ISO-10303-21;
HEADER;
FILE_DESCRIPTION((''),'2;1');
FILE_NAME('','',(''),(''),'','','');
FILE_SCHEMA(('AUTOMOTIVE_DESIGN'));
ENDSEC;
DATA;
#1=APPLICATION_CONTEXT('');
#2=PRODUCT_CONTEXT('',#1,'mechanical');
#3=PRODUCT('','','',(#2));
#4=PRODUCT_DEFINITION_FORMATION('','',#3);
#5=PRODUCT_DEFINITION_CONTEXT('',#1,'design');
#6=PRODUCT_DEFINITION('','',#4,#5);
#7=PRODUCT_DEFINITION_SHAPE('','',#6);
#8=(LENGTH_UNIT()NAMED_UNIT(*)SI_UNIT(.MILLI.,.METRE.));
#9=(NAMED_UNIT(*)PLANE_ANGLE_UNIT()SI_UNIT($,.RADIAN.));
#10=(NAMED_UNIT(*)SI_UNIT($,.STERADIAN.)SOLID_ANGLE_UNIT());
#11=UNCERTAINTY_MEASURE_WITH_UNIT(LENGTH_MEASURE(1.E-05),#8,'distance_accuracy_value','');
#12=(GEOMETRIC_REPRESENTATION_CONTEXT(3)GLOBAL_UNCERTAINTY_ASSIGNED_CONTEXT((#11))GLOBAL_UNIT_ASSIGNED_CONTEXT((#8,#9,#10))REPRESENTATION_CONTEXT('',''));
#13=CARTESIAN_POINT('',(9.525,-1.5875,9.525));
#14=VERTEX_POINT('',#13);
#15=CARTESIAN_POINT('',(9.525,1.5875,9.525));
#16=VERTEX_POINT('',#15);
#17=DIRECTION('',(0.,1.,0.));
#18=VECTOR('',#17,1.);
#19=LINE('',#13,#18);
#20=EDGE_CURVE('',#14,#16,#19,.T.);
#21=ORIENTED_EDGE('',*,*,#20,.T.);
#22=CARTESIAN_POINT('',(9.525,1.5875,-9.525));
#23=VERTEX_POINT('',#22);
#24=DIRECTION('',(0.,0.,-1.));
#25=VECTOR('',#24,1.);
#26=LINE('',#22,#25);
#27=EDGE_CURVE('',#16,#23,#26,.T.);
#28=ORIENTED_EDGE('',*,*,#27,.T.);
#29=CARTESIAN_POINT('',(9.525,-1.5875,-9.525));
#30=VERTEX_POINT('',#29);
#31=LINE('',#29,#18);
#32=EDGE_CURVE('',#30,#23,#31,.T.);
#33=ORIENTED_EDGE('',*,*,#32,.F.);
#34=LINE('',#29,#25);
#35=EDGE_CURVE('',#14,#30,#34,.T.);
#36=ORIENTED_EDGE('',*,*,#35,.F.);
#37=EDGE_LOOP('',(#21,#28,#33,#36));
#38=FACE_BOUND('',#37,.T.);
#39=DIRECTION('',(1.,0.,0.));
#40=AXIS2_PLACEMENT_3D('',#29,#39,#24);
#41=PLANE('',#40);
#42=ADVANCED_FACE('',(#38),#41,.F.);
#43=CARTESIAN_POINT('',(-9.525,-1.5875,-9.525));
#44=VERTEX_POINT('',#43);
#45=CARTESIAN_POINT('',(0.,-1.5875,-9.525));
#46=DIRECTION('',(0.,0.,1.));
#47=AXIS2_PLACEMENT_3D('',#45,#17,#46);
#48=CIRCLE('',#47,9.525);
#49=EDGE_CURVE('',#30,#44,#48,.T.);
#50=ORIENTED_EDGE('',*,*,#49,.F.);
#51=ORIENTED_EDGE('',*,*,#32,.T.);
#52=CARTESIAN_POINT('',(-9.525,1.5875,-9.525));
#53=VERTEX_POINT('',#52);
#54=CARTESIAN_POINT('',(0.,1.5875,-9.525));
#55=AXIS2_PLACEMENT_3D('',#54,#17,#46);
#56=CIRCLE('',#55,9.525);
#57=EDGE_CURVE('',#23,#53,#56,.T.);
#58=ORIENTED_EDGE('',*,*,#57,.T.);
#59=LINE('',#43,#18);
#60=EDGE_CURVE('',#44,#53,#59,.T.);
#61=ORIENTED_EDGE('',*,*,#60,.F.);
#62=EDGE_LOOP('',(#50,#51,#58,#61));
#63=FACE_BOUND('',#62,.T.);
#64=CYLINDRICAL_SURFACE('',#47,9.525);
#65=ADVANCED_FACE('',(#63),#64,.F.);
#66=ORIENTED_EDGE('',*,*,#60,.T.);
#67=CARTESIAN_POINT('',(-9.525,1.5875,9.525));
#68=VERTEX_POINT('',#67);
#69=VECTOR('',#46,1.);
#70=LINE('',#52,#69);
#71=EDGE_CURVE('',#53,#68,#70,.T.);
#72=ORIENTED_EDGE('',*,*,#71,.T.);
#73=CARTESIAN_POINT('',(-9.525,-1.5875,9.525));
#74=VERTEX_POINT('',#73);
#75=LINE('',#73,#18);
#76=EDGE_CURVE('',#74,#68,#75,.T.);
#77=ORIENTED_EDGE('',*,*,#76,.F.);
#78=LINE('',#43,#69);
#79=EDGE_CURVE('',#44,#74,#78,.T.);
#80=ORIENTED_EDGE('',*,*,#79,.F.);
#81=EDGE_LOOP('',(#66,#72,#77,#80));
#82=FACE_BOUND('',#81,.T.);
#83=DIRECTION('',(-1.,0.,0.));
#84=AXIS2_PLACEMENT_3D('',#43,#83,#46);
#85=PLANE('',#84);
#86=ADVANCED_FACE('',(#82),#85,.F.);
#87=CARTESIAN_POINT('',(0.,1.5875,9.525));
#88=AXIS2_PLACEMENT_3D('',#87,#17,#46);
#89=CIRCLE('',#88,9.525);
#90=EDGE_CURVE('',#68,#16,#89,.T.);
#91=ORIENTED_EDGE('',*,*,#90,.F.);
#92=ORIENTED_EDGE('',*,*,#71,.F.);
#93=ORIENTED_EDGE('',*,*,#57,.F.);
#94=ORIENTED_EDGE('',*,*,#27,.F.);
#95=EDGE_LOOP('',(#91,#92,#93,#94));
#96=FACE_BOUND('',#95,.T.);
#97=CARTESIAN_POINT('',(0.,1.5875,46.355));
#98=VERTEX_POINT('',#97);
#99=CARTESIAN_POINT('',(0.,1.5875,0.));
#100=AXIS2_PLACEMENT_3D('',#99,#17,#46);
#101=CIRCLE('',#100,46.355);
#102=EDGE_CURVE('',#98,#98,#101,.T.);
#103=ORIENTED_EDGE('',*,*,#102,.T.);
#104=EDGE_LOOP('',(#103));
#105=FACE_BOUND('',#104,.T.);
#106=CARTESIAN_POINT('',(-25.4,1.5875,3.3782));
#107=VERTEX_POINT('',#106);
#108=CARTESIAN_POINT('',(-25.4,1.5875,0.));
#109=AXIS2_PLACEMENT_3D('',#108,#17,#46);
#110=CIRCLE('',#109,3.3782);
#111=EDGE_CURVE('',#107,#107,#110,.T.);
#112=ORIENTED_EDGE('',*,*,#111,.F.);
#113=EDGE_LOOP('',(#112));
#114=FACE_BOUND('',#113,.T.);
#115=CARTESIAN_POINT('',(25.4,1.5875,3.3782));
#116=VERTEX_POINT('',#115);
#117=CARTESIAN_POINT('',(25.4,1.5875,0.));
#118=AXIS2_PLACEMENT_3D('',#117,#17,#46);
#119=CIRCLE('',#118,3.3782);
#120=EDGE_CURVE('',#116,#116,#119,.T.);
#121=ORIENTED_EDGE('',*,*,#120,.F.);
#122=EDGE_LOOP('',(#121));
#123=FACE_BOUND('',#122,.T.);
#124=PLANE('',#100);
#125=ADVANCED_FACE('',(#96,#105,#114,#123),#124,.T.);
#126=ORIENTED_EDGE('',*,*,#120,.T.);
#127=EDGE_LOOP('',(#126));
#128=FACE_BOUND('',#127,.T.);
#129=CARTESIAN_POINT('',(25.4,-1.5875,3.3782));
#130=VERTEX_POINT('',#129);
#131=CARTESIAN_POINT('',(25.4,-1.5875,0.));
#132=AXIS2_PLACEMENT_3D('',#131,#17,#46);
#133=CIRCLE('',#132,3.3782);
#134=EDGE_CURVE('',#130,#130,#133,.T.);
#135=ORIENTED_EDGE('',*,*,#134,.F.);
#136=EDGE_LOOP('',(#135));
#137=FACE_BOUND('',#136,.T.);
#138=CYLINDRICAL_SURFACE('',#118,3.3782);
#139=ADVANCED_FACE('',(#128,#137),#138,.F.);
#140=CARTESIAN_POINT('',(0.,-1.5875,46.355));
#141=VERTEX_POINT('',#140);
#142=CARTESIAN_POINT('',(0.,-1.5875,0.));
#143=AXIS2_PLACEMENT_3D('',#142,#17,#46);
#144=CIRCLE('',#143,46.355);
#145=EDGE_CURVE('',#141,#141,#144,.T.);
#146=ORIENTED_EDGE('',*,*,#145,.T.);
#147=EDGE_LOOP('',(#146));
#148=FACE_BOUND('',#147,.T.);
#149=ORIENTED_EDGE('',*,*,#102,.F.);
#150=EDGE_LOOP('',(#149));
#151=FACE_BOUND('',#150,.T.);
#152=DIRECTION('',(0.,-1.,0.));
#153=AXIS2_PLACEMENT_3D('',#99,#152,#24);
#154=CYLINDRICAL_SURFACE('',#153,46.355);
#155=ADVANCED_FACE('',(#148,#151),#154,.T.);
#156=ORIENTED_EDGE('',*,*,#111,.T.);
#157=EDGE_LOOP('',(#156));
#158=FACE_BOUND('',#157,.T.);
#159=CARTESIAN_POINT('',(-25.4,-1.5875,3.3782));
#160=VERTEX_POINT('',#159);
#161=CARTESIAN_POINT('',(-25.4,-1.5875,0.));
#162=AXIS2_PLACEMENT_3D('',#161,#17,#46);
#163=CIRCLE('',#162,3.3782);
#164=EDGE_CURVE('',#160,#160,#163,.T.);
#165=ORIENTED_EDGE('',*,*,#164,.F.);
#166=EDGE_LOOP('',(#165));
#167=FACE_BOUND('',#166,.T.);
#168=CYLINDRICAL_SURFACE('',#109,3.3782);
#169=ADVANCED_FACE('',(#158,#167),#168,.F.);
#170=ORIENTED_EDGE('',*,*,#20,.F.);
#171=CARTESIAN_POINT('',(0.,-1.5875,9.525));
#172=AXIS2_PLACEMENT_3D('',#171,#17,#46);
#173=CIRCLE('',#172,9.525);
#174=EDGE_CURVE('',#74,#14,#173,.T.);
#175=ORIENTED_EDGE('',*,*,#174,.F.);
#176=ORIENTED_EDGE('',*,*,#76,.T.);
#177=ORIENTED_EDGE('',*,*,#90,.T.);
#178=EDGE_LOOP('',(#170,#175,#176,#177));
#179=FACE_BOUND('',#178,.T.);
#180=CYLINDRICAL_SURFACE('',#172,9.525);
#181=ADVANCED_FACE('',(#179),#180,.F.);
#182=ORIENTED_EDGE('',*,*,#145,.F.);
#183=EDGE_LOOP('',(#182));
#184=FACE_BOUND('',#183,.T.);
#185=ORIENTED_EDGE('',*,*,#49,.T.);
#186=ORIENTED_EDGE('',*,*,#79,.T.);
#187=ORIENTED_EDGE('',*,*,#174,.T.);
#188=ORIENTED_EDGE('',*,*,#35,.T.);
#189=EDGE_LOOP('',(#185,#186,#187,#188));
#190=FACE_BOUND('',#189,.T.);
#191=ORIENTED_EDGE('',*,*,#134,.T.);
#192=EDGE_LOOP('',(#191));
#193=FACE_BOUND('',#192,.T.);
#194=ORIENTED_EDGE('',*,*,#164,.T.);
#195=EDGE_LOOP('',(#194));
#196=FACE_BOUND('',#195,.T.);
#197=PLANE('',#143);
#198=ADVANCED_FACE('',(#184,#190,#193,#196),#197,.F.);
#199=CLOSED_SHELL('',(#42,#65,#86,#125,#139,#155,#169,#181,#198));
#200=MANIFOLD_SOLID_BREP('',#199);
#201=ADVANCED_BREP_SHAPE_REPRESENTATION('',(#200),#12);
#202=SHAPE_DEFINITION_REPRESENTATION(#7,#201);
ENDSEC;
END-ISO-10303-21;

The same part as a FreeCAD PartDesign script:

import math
import FreeCAD as App
import Part
import Sketcher

V = App.Vector
Q = App.Units.Quantity

doc = App.newDocument("Part")
body = doc.addObject("PartDesign::Body", "Body")

# Sketch on XZ plane
sketch1 = doc.addObject("Sketcher::SketchObject", "Sketch")
body.addObject(sketch1)
sketch1.AttachmentSupport = (doc.XZ_Plane, [""])
sketch1.MapMode = "FlatFace"
sketch1.addGeometry(Part.Circle(V(0, 0, 0), V(0, 0, 1), 46), False)
sketch1.addConstraint([
    Sketcher.Constraint("Coincident", 0, 3, -1, 1),
    Sketcher.Constraint("Diameter", 0, Q("3.65 in")),
])
pad1 = doc.addObject("PartDesign::Pad", "Pad")
body.addObject(pad1)
pad1.Profile = sketch1
pad1.Length = Q("0.125 in")
pad1.Midplane = True

# Sketch on XZ plane
sketch2 = doc.addObject("Sketcher::SketchObject", "Sketch001")
body.addObject(sketch2)
sketch2.AttachmentSupport = (doc.XZ_Plane, [""])
sketch2.MapMode = "FlatFace"
sketch2.AttachmentOffset = App.Placement(V(0, 0, -0.0625 * 25.4), App.Rotation())
sketch2.addGeometry([
    Part.Circle(V(25.4, 0, 0), V(0, 0, 1), 3.4),
    Part.Circle(V(-25.4, 0, 0), V(0, 0, 1), 3.4),
], False)
sketch2.addConstraint([
    Sketcher.Constraint("Equal", 0, 1),
    Sketcher.Constraint("Symmetric", 0, 3, 1, 3, -1, 1),
    Sketcher.Constraint("PointOnObject", 0, 3, -1),
    Sketcher.Constraint("Diameter", 0, Q("0.266 in")),
    Sketcher.Constraint("DistanceX", -1, 1, 0, 3, Q("1 in")),
])
doc.recompute()
hole = doc.addObject("PartDesign::Hole", "Hole")
body.addObject(hole)
hole.Profile = sketch2
hole.ThreadType = "None"
hole.Diameter = Q("0.266 in")
hole.DepthType = "Dimension"
hole.Depth = 48.770173
hole.DrillPoint = "Angled"
hole.DrillPointAngle = 118
hole.Reversed = True

# Sketch on XZ plane
sketch3 = doc.addObject("Sketcher::SketchObject", "Sketch002")
body.addObject(sketch3)
sketch3.AttachmentSupport = (doc.XZ_Plane, [""])
sketch3.MapMode = "FlatFace"
sketch3.AttachmentOffset = App.Placement(V(0, 0, -0.0625 * 25.4), App.Rotation())
sketch3.addGeometry([
    Part.LineSegment(V(10, 10, 0), V(10, -10, 0)),
    Part.ArcOfCircle(Part.Circle(V(0, -10, 0), V(0, 0, 1), 10), math.radians(180), math.radians(360)),
    Part.LineSegment(V(-10, -10, 0), V(-10, 10, 0)),
    Part.ArcOfCircle(Part.Circle(V(0, 10, 0), V(0, 0, 1), 10), math.radians(0), math.radians(180)),
], False)
sketch3.addConstraint([
    Sketcher.Constraint("Tangent", 0, 2, 1, 2),
    Sketcher.Constraint("Tangent", 1, 1, 2, 1),
    Sketcher.Constraint("Tangent", 2, 2, 3, 2),
    Sketcher.Constraint("Tangent", 3, 1, 0, 1),
    Sketcher.Constraint("Vertical", 0),
    Sketcher.Constraint("Vertical", 2),
    Sketcher.Constraint("Symmetric", 1, 3, 3, 3, -1, 1),
    Sketcher.Constraint("Radius", 1, Q("0.375 in")),
    Sketcher.Constraint("DistanceY", 0, 2, 0, 1, Q("0.75 in")),
])
pocket1 = doc.addObject("PartDesign::Pocket", "Pocket")
body.addObject(pocket1)
pocket1.Profile = sketch3
pocket1.Type = "ThroughAll"
pocket1.Reversed = True

doc.recompute()
